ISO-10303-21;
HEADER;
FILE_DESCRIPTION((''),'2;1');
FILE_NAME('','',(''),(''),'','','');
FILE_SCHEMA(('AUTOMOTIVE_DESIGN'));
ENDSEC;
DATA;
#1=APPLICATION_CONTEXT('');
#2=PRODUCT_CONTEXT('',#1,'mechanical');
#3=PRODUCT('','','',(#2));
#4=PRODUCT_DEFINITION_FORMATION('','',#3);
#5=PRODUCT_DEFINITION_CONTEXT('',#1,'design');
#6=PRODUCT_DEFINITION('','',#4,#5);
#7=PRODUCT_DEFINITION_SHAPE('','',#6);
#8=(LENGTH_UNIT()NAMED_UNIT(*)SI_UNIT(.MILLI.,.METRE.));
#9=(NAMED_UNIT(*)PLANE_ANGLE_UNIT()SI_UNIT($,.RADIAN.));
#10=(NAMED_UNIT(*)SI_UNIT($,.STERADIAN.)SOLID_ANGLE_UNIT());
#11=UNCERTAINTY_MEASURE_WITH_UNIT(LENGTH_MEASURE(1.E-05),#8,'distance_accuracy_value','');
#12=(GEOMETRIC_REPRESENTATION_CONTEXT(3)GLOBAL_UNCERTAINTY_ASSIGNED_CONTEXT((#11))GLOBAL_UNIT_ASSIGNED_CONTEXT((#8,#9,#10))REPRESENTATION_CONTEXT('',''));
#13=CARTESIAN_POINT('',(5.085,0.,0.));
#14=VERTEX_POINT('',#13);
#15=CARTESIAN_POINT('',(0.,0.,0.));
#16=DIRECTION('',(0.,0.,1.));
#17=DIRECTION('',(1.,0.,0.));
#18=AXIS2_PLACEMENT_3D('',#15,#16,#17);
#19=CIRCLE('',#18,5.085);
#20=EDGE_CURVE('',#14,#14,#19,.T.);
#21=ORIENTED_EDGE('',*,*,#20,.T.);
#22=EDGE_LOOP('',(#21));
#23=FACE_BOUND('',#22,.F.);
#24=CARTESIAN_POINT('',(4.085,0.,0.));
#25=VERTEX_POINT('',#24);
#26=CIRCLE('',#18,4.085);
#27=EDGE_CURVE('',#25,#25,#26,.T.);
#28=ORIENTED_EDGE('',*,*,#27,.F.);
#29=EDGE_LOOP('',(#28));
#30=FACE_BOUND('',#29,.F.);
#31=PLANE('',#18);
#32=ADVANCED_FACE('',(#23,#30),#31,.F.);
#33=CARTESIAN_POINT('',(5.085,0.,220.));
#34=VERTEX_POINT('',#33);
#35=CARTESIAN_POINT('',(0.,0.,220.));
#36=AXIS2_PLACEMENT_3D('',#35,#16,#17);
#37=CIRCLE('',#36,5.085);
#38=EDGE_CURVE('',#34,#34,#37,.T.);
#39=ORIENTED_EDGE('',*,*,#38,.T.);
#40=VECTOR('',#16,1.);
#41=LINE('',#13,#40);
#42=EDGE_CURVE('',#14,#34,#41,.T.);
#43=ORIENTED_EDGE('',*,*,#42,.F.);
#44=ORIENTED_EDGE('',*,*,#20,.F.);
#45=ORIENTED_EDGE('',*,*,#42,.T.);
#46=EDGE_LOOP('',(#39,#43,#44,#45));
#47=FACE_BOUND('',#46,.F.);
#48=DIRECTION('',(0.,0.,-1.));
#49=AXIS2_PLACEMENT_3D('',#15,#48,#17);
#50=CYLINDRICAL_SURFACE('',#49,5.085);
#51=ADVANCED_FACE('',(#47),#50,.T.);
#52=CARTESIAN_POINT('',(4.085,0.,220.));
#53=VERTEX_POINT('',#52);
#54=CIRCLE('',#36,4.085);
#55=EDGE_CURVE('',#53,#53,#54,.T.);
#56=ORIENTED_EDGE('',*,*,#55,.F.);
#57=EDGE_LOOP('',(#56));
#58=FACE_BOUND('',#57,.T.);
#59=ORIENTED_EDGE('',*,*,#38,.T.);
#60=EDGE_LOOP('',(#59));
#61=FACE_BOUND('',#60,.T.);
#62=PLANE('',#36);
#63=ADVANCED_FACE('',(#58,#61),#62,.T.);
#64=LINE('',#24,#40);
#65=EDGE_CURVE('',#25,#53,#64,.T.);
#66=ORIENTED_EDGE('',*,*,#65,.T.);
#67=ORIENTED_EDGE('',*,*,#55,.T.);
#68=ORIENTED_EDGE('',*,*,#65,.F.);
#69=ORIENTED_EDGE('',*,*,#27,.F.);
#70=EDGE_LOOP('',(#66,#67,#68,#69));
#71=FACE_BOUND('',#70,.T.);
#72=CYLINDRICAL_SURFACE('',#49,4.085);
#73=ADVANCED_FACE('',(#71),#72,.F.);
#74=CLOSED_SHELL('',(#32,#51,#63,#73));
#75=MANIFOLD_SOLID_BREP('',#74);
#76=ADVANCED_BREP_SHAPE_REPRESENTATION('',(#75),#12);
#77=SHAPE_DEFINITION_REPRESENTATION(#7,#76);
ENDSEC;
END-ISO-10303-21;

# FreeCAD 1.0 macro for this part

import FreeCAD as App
import Part
import Sketcher
from FreeCAD import Vector

doc = App.newDocument("Part")
body = doc.addObject("PartDesign::Body", "Body")

# Sketch on XY plane
sketch1 = body.newObject("Sketcher::SketchObject", "Sketch")
sketch1.AttachmentSupport = (doc.getObject("XY_Plane"), [""])
sketch1.MapMode = "FlatFace"
sketch1.addGeometry(Part.Circle(Vector(0, 0, 0), Vector(0, 0, 1), 5.1), False)
sketch1.addGeometry(Part.Circle(Vector(0, 0, 0), Vector(0, 0, 1), 4.1), False)
sketch1.addConstraint(Sketcher.Constraint("Coincident", 0, 3, -1, 1))
sketch1.addConstraint(Sketcher.Constraint("Coincident", 1, 3, -1, 1))
sketch1.addConstraint(Sketcher.Constraint("Diameter", 0, 10.17))
sketch1.addConstraint(Sketcher.Constraint("Diameter", 1, 8.17))
pad1 = body.newObject("PartDesign::Pad", "Pad")
pad1.Profile = sketch1
pad1.Length = 220

doc.recompute()
